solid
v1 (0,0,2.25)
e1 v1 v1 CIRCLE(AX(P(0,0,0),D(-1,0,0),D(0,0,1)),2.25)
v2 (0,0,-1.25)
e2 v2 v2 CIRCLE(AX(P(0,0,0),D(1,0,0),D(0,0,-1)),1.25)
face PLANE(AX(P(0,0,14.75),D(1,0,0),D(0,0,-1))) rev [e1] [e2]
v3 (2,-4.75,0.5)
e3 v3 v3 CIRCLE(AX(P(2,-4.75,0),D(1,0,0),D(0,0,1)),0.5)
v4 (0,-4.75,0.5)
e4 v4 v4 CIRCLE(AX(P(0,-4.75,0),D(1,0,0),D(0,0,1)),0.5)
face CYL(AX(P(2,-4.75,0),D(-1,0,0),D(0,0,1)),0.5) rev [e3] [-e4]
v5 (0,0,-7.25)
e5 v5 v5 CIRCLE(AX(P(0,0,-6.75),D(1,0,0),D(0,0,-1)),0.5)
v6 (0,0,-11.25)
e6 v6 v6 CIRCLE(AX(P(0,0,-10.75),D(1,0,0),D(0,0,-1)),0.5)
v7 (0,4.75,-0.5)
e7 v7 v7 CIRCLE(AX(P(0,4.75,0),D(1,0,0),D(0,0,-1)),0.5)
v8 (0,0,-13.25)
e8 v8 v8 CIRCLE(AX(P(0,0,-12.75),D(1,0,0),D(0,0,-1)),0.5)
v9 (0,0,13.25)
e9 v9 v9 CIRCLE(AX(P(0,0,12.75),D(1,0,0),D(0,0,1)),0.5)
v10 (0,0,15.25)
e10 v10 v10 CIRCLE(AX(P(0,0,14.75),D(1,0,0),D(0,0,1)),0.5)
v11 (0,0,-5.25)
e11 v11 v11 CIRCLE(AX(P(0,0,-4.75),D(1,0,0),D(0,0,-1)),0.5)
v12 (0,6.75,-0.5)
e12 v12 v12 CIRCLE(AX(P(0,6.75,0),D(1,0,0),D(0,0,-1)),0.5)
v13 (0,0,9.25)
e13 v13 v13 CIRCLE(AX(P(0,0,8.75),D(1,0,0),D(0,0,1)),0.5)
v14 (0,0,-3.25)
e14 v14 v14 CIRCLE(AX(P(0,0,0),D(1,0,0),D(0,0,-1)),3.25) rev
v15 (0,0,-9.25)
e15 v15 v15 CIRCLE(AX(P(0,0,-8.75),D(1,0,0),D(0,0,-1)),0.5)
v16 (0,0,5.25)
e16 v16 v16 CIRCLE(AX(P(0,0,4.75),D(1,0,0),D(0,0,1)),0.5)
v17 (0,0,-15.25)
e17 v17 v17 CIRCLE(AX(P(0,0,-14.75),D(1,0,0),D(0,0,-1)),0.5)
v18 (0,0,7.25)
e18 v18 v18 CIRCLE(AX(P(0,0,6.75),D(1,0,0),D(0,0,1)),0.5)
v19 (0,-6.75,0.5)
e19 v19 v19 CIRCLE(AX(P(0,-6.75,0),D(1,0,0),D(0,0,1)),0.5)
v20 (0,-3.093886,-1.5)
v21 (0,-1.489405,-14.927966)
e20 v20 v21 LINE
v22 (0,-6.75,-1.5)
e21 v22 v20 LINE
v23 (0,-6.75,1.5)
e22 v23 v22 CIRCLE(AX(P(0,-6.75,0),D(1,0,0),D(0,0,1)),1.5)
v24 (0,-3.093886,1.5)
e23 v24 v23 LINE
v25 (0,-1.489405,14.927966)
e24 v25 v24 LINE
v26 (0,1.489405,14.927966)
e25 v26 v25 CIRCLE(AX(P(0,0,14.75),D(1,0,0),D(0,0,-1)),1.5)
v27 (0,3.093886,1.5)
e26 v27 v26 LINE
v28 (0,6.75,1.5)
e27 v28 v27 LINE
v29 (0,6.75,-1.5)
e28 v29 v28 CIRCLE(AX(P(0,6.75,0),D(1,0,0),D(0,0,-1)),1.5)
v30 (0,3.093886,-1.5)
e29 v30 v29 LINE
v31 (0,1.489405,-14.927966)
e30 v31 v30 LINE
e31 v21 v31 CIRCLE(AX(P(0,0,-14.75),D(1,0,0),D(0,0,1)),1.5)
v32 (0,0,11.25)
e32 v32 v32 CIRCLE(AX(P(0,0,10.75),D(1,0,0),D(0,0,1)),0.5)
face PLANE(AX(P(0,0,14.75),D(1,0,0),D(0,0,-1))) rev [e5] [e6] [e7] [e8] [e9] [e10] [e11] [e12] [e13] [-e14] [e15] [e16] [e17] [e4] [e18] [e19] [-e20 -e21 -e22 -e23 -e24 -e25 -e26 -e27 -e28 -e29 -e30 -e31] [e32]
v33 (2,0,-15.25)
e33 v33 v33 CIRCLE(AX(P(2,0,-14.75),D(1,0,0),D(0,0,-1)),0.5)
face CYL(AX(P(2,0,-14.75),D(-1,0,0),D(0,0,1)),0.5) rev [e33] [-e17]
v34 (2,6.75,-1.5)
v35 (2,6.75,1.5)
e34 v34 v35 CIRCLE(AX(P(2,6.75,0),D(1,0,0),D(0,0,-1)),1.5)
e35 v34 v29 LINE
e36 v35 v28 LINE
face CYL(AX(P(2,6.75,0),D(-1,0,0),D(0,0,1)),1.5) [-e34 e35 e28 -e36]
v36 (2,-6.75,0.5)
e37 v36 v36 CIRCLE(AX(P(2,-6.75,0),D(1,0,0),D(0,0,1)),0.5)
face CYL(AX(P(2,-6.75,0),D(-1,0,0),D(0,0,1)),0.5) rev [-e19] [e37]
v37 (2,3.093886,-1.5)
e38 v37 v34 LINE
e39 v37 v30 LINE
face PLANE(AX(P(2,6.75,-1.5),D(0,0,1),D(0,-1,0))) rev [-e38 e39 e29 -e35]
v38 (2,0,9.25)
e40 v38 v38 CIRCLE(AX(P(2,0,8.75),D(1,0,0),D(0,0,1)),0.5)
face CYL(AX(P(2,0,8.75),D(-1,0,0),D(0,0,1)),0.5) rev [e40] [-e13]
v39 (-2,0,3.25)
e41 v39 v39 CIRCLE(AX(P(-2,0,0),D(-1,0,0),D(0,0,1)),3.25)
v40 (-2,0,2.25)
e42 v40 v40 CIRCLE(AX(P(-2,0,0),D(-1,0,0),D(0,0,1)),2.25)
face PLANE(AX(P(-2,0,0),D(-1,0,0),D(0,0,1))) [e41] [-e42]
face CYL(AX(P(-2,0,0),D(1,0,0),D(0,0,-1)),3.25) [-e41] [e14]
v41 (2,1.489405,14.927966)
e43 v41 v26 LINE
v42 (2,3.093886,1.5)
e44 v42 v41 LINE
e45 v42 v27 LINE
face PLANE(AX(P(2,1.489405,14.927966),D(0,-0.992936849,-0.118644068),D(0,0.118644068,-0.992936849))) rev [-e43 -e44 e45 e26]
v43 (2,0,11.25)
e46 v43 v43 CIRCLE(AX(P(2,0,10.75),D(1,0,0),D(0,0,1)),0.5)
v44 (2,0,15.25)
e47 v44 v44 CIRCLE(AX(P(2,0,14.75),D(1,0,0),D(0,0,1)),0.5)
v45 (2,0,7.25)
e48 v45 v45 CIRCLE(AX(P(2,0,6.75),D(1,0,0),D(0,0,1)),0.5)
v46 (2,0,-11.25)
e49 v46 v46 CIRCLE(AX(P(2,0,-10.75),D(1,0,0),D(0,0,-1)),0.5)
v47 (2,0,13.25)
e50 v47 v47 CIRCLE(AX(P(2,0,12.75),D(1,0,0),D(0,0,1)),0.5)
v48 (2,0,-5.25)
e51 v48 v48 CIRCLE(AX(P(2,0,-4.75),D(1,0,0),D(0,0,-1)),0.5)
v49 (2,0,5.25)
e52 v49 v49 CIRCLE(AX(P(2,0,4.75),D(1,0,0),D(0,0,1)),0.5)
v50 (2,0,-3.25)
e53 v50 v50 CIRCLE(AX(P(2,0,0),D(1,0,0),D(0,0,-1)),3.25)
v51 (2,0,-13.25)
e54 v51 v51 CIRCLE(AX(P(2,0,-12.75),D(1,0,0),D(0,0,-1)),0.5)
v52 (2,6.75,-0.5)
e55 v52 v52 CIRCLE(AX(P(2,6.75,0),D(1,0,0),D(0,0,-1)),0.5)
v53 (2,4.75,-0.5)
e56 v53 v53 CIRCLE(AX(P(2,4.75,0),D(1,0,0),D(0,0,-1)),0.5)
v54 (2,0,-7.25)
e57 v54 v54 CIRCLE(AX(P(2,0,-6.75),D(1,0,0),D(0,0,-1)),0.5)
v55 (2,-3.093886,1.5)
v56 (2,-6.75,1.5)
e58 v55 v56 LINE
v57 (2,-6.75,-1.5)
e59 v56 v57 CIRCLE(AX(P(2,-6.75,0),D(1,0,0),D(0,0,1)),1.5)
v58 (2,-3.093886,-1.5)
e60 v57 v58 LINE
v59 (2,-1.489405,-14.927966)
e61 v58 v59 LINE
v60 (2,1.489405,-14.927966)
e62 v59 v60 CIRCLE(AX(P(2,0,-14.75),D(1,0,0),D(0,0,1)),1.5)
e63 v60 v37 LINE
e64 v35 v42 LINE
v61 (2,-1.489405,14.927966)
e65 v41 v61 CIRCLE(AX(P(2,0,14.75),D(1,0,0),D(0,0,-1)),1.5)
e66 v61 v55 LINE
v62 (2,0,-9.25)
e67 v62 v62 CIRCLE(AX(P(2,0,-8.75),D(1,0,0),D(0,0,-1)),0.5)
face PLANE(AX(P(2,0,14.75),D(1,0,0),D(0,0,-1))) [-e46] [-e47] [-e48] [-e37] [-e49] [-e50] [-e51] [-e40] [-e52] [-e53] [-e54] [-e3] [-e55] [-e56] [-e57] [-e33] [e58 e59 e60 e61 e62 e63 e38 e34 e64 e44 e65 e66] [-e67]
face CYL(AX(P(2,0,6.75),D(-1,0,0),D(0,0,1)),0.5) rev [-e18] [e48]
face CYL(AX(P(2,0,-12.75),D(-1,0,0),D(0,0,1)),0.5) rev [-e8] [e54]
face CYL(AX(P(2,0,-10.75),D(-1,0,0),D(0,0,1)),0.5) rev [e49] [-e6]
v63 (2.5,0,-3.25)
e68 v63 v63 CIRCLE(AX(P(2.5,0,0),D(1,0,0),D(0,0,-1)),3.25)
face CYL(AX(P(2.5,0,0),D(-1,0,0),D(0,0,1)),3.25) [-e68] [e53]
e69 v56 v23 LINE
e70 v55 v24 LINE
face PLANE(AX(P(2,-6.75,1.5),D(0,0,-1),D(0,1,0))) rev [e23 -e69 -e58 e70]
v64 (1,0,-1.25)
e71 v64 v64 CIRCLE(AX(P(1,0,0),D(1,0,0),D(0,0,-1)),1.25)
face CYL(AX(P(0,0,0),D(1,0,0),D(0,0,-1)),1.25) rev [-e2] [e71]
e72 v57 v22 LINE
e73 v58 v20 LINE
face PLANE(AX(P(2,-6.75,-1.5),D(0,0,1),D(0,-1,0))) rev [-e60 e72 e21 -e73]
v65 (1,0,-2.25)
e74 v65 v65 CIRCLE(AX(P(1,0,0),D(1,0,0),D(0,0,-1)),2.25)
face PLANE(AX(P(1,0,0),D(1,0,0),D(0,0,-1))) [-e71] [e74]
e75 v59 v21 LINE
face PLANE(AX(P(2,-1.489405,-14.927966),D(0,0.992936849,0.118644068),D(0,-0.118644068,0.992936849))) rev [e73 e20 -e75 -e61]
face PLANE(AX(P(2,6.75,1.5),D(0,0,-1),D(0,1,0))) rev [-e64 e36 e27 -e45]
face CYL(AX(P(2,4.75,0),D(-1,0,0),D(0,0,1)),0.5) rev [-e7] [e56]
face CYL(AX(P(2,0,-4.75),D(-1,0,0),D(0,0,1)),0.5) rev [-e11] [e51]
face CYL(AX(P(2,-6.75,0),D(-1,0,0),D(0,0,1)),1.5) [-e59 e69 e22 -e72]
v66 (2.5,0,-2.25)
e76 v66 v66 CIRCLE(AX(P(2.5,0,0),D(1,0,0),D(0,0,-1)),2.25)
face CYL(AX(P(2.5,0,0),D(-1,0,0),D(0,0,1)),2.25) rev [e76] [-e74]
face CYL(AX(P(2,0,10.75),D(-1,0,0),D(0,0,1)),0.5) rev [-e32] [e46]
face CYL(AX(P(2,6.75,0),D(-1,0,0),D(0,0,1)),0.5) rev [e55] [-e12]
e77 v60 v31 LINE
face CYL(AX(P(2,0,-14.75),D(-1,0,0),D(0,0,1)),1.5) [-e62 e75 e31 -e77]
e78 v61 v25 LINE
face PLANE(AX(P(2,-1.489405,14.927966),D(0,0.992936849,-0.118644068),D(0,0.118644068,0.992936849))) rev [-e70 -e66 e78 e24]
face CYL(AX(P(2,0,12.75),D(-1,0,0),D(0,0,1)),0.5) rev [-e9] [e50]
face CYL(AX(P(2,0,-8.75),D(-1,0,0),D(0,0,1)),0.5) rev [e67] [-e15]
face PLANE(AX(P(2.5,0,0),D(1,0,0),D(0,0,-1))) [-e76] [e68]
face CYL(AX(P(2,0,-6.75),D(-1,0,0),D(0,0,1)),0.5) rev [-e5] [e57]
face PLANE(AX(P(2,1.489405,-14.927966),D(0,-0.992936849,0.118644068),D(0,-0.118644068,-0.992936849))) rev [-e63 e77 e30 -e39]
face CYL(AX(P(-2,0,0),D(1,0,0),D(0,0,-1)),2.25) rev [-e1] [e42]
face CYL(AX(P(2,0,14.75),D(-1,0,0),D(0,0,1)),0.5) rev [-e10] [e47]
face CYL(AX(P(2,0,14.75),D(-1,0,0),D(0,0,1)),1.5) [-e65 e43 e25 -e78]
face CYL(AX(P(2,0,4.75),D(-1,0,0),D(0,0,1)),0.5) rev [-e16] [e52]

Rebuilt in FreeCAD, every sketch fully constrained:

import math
import FreeCAD as App
import Part
import Sketcher

doc = App.newDocument("Part")
params = doc.addObject("Spreadsheet::Sheet", "Params")
for row, (alias, value) in enumerate([
    ("sketch1_diameter", "1 mm"),
    ("sketch1_diameter2", "6.5 mm"),
    ("sketch1_radius", "1.5 mm"),
    ("pad1_length", "2 mm"),
    ("sketch2_diameter", "6.5 mm"),
    ("sketch2_diameter2", "2.5 mm"),
    ("pad2_length", "2 mm"),
    ("sketch3_diameter", "6.5 mm"),
    ("sketch3_diameter2", "4.5 mm"),
    ("pad3_length", "2 mm"),
    ("sketch4_diameter", "6.5 mm"),
    ("sketch4_diameter2", "4.5 mm"),
    ("pad4_length", "0.5 mm"),
    ("sketch5_diameter", "4.5 mm"),
    ("sketch5_diameter2", "2.5 mm"),
    ("pocket1_length", "1 mm"),
], start=1):
    params.set(f"A{row}", alias)
    params.set(f"B{row}", "=" + value)
    params.setAlias(f"B{row}", alias)

body = doc.addObject("PartDesign::Body", "Body")

# Sketch on YZ plane
sketch1 = body.newObject("Sketcher::SketchObject", "Sketch")
sketch1.AttachmentSupport = (doc.getObject("YZ_Plane"), [""])
sketch1.MapMode = "FlatFace"
sketch1.addGeometry([
    Part.LineSegment(App.Vector(3.093886, 1.5, 0), App.Vector(1.489405, 14.927966, 0)),  # 0
    Part.ArcOfCircle(Part.Circle(App.Vector(0, 14.75, 0), App.Vector(0, 0, 1), 1.5), math.radians(6.813854), math.radians(173.186146)),  # 1
    Part.LineSegment(App.Vector(-1.489405, 14.927966, 0), App.Vector(-3.093886, 1.5, 0)),  # 2
    Part.LineSegment(App.Vector(-3.093886, 1.5, 0), App.Vector(-6.75, 1.5, 0)),  # 3
    Part.ArcOfCircle(Part.Circle(App.Vector(-6.75, 0, 0), App.Vector(0, 0, 1), 1.5), math.radians(90), math.radians(270)),  # 4
    Part.LineSegment(App.Vector(-6.75, -1.5, 0), App.Vector(-3.093886, -1.5, 0)),  # 5
    Part.LineSegment(App.Vector(-3.093886, -1.5, 0), App.Vector(-1.489405, -14.927966, 0)),  # 6
    Part.ArcOfCircle(Part.Circle(App.Vector(0, -14.75, 0), App.Vector(0, 0, 1), 1.5), math.radians(-173.186146), math.radians(-6.813854)),  # 7
    Part.LineSegment(App.Vector(1.489405, -14.927966, 0), App.Vector(3.093886, -1.5, 0)),  # 8
    Part.LineSegment(App.Vector(3.093886, -1.5, 0), App.Vector(6.75, -1.5, 0)),  # 9
    Part.ArcOfCircle(Part.Circle(App.Vector(6.75, 0, 0), App.Vector(0, 0, 1), 1.5), math.radians(-90), math.radians(90)),  # 10
    Part.LineSegment(App.Vector(6.75, 1.5, 0), App.Vector(3.093886, 1.5, 0)),  # 11
    Part.Circle(App.Vector(-6.75, 0, 0), App.Vector(0, 0, 1), 0.5),  # 12
    Part.Circle(App.Vector(-4.75, 0, 0), App.Vector(0, 0, 1), 0.5),  # 13
    Part.Circle(App.Vector(0, -14.75, 0), App.Vector(0, 0, 1), 0.5),  # 14
    Part.Circle(App.Vector(0, -12.75, 0), App.Vector(0, 0, 1), 0.5),  # 15
    Part.Circle(App.Vector(0, -10.75, 0), App.Vector(0, 0, 1), 0.5),  # 16
    Part.Circle(App.Vector(0, -8.75, 0), App.Vector(0, 0, 1), 0.5),  # 17
    Part.Circle(App.Vector(0, -6.75, 0), App.Vector(0, 0, 1), 0.5),  # 18
    Part.Circle(App.Vector(0, -4.75, 0), App.Vector(0, 0, 1), 0.5),  # 19
    Part.Circle(App.Vector(0, 0, 0), App.Vector(0, 0, 1), 3.25),  # 20
    Part.Circle(App.Vector(0, 4.75, 0), App.Vector(0, 0, 1), 0.5),  # 21
    Part.Circle(App.Vector(0, 6.75, 0), App.Vector(0, 0, 1), 0.5),  # 22
    Part.Circle(App.Vector(0, 8.75, 0), App.Vector(0, 0, 1), 0.5),  # 23
    Part.Circle(App.Vector(0, 10.75, 0), App.Vector(0, 0, 1), 0.5),  # 24
    Part.Circle(App.Vector(0, 12.75, 0), App.Vector(0, 0, 1), 0.5),  # 25
    Part.Circle(App.Vector(0, 14.75, 0), App.Vector(0, 0, 1), 0.5),  # 26
    Part.Circle(App.Vector(4.75, 0, 0), App.Vector(0, 0, 1), 0.5),  # 27
    Part.Circle(App.Vector(6.75, 0, 0), App.Vector(0, 0, 1), 0.5),  # 28
], False)
sketch1.addConstraint([
    Sketcher.Constraint("Tangent", 0, 2, 1, 1),
    Sketcher.Constraint("Tangent", 1, 2, 2, 1),
    Sketcher.Constraint("Coincident", 2, 2, 3, 1),
    Sketcher.Constraint("Tangent", 3, 2, 4, 1),
    Sketcher.Constraint("Tangent", 4, 2, 5, 1),
    Sketcher.Constraint("Coincident", 5, 2, 6, 1),
    Sketcher.Constraint("Tangent", 6, 2, 7, 1),
    Sketcher.Constraint("Tangent", 7, 2, 8, 1),
    Sketcher.Constraint("Coincident", 8, 2, 9, 1),
    Sketcher.Constraint("Tangent", 9, 2, 10, 1),
    Sketcher.Constraint("Tangent", 10, 2, 11, 1),
    Sketcher.Constraint("Coincident", 11, 2, 0, 1),
    Sketcher.Constraint("Horizontal", 3),
    Sketcher.Constraint("Horizontal", 5),
    Sketcher.Constraint("Horizontal", 9),
    Sketcher.Constraint("Horizontal", 11),
    Sketcher.Constraint("Coincident", 20, 3, -1, 1),
    Sketcher.Constraint("Coincident", 12, 3, 4, 3),
    Sketcher.Constraint("Coincident", 14, 3, 7, 3),
    Sketcher.Constraint("Coincident", 26, 3, 1, 3),
    Sketcher.Constraint("Coincident", 28, 3, 10, 3),
    Sketcher.Constraint("Equal", 1, 4),
    Sketcher.Constraint("Equal", 4, 7),
    Sketcher.Constraint("Equal", 7, 10),
    Sketcher.Constraint("Equal", 12, 13),
    Sketcher.Constraint("Equal", 13, 14),
    Sketcher.Constraint("Equal", 14, 15),
    Sketcher.Constraint("Equal", 15, 16),
    Sketcher.Constraint("Equal", 16, 17),
    Sketcher.Constraint("Equal", 17, 18),
    Sketcher.Constraint("Equal", 18, 19),
    Sketcher.Constraint("Equal", 19, 21),
    Sketcher.Constraint("Equal", 21, 22),
    Sketcher.Constraint("Equal", 22, 23),
    Sketcher.Constraint("Equal", 23, 24),
    Sketcher.Constraint("Equal", 24, 25),
    Sketcher.Constraint("Equal", 25, 26),
    Sketcher.Constraint("Equal", 26, 27),
    Sketcher.Constraint("Equal", 27, 28),
    Sketcher.Constraint("Symmetric", 1, 3, 7, 3, -1, 1),
    Sketcher.Constraint("Symmetric", 4, 3, 10, 3, -1, 1),
    Sketcher.Constraint("Symmetric", 19, 3, 21, 3, -1, 1),
    Sketcher.Constraint("Symmetric", 18, 3, 22, 3, -1, 1),
    Sketcher.Constraint("Symmetric", 17, 3, 23, 3, -1, 1),
    Sketcher.Constraint("Symmetric", 16, 3, 24, 3, -1, 1),
    Sketcher.Constraint("Symmetric", 15, 3, 25, 3, -1, 1),
    Sketcher.Constraint("Symmetric", 13, 3, 27, 3, -1, 1),
    Sketcher.Constraint("Symmetric", 0, 2, 1, 2, -2),
    Sketcher.Constraint("Symmetric", 5, 2, 8, 2, -2),
    Sketcher.Constraint("PointOnObject", 13, 3, -1),
    Sketcher.Constraint("PointOnObject", 15, 3, -2),
    Sketcher.Constraint("PointOnObject", 16, 3, -2),
    Sketcher.Constraint("PointOnObject", 17, 3, -2),
    Sketcher.Constraint("PointOnObject", 18, 3, -2),
    Sketcher.Constraint("PointOnObject", 19, 3, -2),
    Sketcher.Constraint("Parallel", 0, 6),
    Sketcher.Constraint("Diameter", 12, 1.0),
    Sketcher.Constraint("Diameter", 20, 6.5),
    Sketcher.Constraint("Radius", 1, 1.5),
    Sketcher.Constraint("DistanceX", 4, 3, 13, 3, 2.0),
    Sketcher.Constraint("DistanceY", 7, 3, 15, 3, 2.0),
    Sketcher.Constraint("DistanceY", 15, 3, 16, 3, 2.0),
    Sketcher.Constraint("DistanceY", 16, 3, 17, 3, 2.0),
    Sketcher.Constraint("DistanceY", 17, 3, 18, 3, 2.0),
    Sketcher.Constraint("DistanceY", 18, 3, 19, 3, 2.0),
    Sketcher.Constraint("DistanceY", 7, 3, 1, 3, 29.5),
    Sketcher.Constraint("DistanceX", 4, 3, 10, 3, 13.5),
    Sketcher.Constraint("DistanceX", 3, 2, 3, 1, 3.656114),
])
sketch1.setExpression("Constraints[56]", "Params.sketch1_diameter")
sketch1.setExpression("Constraints[57]", "Params.sketch1_diameter2")
sketch1.setExpression("Constraints[58]", "Params.sketch1_radius")
pad1 = body.newObject("PartDesign::Pad", "Pad")
pad1.Profile = sketch1
pad1.setExpression("Length", "Params.pad1_length")

# Sketch on YZ plane
sketch2 = body.newObject("Sketcher::SketchObject", "Sketch001")
sketch2.AttachmentSupport = (doc.getObject("YZ_Plane"), [""])
sketch2.MapMode = "FlatFace"
sketch2.addGeometry([
    Part.Circle(App.Vector(0, 0, 0), App.Vector(0, 0, 1), 3.25),
    Part.Circle(App.Vector(0, 0, 0), App.Vector(0, 0, 1), 1.25),
], False)
sketch2.addConstraint([
    Sketcher.Constraint("Coincident", 0, 3, -1, 1),
    Sketcher.Constraint("Coincident", 1, 3, -1, 1),
    Sketcher.Constraint("Diameter", 0, 6.5),
    Sketcher.Constraint("Diameter", 1, 2.5),
])
sketch2.setExpression("Constraints[2]", "Params.sketch2_diameter")
sketch2.setExpression("Constraints[3]", "Params.sketch2_diameter2")
pad2 = body.newObject("PartDesign::Pad", "Pad001")
pad2.Profile = sketch2
pad2.setExpression("Length", "Params.pad2_length")

# Sketch on YZ plane
sketch3 = body.newObject("Sketcher::SketchObject", "Sketch002")
sketch3.AttachmentSupport = (doc.getObject("YZ_Plane"), [""])
sketch3.MapMode = "FlatFace"
sketch3.addGeometry([
    Part.Circle(App.Vector(0, 0, 0), App.Vector(0, 0, 1), 3.25),
    Part.Circle(App.Vector(0, 0, 0), App.Vector(0, 0, 1), 2.25),
], False)
sketch3.addConstraint([
    Sketcher.Constraint("Coincident", 0, 3, -1, 1),
    Sketcher.Constraint("Coincident", 1, 3, -1, 1),
    Sketcher.Constraint("Diameter", 0, 6.5),
    Sketcher.Constraint("Diameter", 1, 4.5),
])
sketch3.setExpression("Constraints[2]", "Params.sketch3_diameter")
sketch3.setExpression("Constraints[3]", "Params.sketch3_diameter2")
pad3 = body.newObject("PartDesign::Pad", "Pad002")
pad3.Profile = sketch3
pad3.setExpression("Length", "Params.pad3_length")
pad3.Reversed = True

# Sketch on YZ plane
sketch4 = body.newObject("Sketcher::SketchObject", "Sketch003")
sketch4.AttachmentSupport = (doc.getObject("YZ_Plane"), [""])
sketch4.MapMode = "FlatFace"
sketch4.AttachmentOffset = App.Placement(App.Vector(0, 0, 2.5), App.Rotation())
sketch4.addGeometry([
    Part.Circle(App.Vector(0, 0, 0), App.Vector(0, 0, 1), 3.25),
    Part.Circle(App.Vector(0, 0, 0), App.Vector(0, 0, 1), 2.25),
], False)
sketch4.addConstraint([
    Sketcher.Constraint("Coincident", 0, 3, -1, 1),
    Sketcher.Constraint("Coincident", 1, 3, -1, 1),
    Sketcher.Constraint("Diameter", 0, 6.5),
    Sketcher.Constraint("Diameter", 1, 4.5),
])
sketch4.setExpression("Constraints[2]", "Params.sketch4_diameter")
sketch4.setExpression("Constraints[3]", "Params.sketch4_diameter2")
pad4 = body.newObject("PartDesign::Pad", "Pad003")
pad4.Profile = sketch4
pad4.setExpression("Length", "Params.pad4_length")
pad4.Reversed = True

# Sketch on YZ plane
sketch5 = body.newObject("Sketcher::SketchObject", "Sketch004")
sketch5.AttachmentSupport = (doc.getObject("YZ_Plane"), [""])
sketch5.MapMode = "FlatFace"
sketch5.AttachmentOffset = App.Placement(App.Vector(0, 0, 2), App.Rotation())
sketch5.addGeometry([
    Part.Circle(App.Vector(0, 0, 0), App.Vector(0, 0, 1), 2.25),
    Part.Circle(App.Vector(0, 0, 0), App.Vector(0, 0, 1), 1.25),
], False)
sketch5.addConstraint([
    Sketcher.Constraint("Coincident", 0, 3, -1, 1),
    Sketcher.Constraint("Coincident", 1, 3, -1, 1),
    Sketcher.Constraint("Diameter", 0, 4.5),
    Sketcher.Constraint("Diameter", 1, 2.5),
])
sketch5.setExpression("Constraints[2]", "Params.sketch5_diameter")
sketch5.setExpression("Constraints[3]", "Params.sketch5_diameter2")
pocket1 = body.newObject("PartDesign::Pocket", "Pocket")
pocket1.Profile = sketch5
pocket1.setExpression("Length", "Params.pocket1_length")

doc.recompute()
